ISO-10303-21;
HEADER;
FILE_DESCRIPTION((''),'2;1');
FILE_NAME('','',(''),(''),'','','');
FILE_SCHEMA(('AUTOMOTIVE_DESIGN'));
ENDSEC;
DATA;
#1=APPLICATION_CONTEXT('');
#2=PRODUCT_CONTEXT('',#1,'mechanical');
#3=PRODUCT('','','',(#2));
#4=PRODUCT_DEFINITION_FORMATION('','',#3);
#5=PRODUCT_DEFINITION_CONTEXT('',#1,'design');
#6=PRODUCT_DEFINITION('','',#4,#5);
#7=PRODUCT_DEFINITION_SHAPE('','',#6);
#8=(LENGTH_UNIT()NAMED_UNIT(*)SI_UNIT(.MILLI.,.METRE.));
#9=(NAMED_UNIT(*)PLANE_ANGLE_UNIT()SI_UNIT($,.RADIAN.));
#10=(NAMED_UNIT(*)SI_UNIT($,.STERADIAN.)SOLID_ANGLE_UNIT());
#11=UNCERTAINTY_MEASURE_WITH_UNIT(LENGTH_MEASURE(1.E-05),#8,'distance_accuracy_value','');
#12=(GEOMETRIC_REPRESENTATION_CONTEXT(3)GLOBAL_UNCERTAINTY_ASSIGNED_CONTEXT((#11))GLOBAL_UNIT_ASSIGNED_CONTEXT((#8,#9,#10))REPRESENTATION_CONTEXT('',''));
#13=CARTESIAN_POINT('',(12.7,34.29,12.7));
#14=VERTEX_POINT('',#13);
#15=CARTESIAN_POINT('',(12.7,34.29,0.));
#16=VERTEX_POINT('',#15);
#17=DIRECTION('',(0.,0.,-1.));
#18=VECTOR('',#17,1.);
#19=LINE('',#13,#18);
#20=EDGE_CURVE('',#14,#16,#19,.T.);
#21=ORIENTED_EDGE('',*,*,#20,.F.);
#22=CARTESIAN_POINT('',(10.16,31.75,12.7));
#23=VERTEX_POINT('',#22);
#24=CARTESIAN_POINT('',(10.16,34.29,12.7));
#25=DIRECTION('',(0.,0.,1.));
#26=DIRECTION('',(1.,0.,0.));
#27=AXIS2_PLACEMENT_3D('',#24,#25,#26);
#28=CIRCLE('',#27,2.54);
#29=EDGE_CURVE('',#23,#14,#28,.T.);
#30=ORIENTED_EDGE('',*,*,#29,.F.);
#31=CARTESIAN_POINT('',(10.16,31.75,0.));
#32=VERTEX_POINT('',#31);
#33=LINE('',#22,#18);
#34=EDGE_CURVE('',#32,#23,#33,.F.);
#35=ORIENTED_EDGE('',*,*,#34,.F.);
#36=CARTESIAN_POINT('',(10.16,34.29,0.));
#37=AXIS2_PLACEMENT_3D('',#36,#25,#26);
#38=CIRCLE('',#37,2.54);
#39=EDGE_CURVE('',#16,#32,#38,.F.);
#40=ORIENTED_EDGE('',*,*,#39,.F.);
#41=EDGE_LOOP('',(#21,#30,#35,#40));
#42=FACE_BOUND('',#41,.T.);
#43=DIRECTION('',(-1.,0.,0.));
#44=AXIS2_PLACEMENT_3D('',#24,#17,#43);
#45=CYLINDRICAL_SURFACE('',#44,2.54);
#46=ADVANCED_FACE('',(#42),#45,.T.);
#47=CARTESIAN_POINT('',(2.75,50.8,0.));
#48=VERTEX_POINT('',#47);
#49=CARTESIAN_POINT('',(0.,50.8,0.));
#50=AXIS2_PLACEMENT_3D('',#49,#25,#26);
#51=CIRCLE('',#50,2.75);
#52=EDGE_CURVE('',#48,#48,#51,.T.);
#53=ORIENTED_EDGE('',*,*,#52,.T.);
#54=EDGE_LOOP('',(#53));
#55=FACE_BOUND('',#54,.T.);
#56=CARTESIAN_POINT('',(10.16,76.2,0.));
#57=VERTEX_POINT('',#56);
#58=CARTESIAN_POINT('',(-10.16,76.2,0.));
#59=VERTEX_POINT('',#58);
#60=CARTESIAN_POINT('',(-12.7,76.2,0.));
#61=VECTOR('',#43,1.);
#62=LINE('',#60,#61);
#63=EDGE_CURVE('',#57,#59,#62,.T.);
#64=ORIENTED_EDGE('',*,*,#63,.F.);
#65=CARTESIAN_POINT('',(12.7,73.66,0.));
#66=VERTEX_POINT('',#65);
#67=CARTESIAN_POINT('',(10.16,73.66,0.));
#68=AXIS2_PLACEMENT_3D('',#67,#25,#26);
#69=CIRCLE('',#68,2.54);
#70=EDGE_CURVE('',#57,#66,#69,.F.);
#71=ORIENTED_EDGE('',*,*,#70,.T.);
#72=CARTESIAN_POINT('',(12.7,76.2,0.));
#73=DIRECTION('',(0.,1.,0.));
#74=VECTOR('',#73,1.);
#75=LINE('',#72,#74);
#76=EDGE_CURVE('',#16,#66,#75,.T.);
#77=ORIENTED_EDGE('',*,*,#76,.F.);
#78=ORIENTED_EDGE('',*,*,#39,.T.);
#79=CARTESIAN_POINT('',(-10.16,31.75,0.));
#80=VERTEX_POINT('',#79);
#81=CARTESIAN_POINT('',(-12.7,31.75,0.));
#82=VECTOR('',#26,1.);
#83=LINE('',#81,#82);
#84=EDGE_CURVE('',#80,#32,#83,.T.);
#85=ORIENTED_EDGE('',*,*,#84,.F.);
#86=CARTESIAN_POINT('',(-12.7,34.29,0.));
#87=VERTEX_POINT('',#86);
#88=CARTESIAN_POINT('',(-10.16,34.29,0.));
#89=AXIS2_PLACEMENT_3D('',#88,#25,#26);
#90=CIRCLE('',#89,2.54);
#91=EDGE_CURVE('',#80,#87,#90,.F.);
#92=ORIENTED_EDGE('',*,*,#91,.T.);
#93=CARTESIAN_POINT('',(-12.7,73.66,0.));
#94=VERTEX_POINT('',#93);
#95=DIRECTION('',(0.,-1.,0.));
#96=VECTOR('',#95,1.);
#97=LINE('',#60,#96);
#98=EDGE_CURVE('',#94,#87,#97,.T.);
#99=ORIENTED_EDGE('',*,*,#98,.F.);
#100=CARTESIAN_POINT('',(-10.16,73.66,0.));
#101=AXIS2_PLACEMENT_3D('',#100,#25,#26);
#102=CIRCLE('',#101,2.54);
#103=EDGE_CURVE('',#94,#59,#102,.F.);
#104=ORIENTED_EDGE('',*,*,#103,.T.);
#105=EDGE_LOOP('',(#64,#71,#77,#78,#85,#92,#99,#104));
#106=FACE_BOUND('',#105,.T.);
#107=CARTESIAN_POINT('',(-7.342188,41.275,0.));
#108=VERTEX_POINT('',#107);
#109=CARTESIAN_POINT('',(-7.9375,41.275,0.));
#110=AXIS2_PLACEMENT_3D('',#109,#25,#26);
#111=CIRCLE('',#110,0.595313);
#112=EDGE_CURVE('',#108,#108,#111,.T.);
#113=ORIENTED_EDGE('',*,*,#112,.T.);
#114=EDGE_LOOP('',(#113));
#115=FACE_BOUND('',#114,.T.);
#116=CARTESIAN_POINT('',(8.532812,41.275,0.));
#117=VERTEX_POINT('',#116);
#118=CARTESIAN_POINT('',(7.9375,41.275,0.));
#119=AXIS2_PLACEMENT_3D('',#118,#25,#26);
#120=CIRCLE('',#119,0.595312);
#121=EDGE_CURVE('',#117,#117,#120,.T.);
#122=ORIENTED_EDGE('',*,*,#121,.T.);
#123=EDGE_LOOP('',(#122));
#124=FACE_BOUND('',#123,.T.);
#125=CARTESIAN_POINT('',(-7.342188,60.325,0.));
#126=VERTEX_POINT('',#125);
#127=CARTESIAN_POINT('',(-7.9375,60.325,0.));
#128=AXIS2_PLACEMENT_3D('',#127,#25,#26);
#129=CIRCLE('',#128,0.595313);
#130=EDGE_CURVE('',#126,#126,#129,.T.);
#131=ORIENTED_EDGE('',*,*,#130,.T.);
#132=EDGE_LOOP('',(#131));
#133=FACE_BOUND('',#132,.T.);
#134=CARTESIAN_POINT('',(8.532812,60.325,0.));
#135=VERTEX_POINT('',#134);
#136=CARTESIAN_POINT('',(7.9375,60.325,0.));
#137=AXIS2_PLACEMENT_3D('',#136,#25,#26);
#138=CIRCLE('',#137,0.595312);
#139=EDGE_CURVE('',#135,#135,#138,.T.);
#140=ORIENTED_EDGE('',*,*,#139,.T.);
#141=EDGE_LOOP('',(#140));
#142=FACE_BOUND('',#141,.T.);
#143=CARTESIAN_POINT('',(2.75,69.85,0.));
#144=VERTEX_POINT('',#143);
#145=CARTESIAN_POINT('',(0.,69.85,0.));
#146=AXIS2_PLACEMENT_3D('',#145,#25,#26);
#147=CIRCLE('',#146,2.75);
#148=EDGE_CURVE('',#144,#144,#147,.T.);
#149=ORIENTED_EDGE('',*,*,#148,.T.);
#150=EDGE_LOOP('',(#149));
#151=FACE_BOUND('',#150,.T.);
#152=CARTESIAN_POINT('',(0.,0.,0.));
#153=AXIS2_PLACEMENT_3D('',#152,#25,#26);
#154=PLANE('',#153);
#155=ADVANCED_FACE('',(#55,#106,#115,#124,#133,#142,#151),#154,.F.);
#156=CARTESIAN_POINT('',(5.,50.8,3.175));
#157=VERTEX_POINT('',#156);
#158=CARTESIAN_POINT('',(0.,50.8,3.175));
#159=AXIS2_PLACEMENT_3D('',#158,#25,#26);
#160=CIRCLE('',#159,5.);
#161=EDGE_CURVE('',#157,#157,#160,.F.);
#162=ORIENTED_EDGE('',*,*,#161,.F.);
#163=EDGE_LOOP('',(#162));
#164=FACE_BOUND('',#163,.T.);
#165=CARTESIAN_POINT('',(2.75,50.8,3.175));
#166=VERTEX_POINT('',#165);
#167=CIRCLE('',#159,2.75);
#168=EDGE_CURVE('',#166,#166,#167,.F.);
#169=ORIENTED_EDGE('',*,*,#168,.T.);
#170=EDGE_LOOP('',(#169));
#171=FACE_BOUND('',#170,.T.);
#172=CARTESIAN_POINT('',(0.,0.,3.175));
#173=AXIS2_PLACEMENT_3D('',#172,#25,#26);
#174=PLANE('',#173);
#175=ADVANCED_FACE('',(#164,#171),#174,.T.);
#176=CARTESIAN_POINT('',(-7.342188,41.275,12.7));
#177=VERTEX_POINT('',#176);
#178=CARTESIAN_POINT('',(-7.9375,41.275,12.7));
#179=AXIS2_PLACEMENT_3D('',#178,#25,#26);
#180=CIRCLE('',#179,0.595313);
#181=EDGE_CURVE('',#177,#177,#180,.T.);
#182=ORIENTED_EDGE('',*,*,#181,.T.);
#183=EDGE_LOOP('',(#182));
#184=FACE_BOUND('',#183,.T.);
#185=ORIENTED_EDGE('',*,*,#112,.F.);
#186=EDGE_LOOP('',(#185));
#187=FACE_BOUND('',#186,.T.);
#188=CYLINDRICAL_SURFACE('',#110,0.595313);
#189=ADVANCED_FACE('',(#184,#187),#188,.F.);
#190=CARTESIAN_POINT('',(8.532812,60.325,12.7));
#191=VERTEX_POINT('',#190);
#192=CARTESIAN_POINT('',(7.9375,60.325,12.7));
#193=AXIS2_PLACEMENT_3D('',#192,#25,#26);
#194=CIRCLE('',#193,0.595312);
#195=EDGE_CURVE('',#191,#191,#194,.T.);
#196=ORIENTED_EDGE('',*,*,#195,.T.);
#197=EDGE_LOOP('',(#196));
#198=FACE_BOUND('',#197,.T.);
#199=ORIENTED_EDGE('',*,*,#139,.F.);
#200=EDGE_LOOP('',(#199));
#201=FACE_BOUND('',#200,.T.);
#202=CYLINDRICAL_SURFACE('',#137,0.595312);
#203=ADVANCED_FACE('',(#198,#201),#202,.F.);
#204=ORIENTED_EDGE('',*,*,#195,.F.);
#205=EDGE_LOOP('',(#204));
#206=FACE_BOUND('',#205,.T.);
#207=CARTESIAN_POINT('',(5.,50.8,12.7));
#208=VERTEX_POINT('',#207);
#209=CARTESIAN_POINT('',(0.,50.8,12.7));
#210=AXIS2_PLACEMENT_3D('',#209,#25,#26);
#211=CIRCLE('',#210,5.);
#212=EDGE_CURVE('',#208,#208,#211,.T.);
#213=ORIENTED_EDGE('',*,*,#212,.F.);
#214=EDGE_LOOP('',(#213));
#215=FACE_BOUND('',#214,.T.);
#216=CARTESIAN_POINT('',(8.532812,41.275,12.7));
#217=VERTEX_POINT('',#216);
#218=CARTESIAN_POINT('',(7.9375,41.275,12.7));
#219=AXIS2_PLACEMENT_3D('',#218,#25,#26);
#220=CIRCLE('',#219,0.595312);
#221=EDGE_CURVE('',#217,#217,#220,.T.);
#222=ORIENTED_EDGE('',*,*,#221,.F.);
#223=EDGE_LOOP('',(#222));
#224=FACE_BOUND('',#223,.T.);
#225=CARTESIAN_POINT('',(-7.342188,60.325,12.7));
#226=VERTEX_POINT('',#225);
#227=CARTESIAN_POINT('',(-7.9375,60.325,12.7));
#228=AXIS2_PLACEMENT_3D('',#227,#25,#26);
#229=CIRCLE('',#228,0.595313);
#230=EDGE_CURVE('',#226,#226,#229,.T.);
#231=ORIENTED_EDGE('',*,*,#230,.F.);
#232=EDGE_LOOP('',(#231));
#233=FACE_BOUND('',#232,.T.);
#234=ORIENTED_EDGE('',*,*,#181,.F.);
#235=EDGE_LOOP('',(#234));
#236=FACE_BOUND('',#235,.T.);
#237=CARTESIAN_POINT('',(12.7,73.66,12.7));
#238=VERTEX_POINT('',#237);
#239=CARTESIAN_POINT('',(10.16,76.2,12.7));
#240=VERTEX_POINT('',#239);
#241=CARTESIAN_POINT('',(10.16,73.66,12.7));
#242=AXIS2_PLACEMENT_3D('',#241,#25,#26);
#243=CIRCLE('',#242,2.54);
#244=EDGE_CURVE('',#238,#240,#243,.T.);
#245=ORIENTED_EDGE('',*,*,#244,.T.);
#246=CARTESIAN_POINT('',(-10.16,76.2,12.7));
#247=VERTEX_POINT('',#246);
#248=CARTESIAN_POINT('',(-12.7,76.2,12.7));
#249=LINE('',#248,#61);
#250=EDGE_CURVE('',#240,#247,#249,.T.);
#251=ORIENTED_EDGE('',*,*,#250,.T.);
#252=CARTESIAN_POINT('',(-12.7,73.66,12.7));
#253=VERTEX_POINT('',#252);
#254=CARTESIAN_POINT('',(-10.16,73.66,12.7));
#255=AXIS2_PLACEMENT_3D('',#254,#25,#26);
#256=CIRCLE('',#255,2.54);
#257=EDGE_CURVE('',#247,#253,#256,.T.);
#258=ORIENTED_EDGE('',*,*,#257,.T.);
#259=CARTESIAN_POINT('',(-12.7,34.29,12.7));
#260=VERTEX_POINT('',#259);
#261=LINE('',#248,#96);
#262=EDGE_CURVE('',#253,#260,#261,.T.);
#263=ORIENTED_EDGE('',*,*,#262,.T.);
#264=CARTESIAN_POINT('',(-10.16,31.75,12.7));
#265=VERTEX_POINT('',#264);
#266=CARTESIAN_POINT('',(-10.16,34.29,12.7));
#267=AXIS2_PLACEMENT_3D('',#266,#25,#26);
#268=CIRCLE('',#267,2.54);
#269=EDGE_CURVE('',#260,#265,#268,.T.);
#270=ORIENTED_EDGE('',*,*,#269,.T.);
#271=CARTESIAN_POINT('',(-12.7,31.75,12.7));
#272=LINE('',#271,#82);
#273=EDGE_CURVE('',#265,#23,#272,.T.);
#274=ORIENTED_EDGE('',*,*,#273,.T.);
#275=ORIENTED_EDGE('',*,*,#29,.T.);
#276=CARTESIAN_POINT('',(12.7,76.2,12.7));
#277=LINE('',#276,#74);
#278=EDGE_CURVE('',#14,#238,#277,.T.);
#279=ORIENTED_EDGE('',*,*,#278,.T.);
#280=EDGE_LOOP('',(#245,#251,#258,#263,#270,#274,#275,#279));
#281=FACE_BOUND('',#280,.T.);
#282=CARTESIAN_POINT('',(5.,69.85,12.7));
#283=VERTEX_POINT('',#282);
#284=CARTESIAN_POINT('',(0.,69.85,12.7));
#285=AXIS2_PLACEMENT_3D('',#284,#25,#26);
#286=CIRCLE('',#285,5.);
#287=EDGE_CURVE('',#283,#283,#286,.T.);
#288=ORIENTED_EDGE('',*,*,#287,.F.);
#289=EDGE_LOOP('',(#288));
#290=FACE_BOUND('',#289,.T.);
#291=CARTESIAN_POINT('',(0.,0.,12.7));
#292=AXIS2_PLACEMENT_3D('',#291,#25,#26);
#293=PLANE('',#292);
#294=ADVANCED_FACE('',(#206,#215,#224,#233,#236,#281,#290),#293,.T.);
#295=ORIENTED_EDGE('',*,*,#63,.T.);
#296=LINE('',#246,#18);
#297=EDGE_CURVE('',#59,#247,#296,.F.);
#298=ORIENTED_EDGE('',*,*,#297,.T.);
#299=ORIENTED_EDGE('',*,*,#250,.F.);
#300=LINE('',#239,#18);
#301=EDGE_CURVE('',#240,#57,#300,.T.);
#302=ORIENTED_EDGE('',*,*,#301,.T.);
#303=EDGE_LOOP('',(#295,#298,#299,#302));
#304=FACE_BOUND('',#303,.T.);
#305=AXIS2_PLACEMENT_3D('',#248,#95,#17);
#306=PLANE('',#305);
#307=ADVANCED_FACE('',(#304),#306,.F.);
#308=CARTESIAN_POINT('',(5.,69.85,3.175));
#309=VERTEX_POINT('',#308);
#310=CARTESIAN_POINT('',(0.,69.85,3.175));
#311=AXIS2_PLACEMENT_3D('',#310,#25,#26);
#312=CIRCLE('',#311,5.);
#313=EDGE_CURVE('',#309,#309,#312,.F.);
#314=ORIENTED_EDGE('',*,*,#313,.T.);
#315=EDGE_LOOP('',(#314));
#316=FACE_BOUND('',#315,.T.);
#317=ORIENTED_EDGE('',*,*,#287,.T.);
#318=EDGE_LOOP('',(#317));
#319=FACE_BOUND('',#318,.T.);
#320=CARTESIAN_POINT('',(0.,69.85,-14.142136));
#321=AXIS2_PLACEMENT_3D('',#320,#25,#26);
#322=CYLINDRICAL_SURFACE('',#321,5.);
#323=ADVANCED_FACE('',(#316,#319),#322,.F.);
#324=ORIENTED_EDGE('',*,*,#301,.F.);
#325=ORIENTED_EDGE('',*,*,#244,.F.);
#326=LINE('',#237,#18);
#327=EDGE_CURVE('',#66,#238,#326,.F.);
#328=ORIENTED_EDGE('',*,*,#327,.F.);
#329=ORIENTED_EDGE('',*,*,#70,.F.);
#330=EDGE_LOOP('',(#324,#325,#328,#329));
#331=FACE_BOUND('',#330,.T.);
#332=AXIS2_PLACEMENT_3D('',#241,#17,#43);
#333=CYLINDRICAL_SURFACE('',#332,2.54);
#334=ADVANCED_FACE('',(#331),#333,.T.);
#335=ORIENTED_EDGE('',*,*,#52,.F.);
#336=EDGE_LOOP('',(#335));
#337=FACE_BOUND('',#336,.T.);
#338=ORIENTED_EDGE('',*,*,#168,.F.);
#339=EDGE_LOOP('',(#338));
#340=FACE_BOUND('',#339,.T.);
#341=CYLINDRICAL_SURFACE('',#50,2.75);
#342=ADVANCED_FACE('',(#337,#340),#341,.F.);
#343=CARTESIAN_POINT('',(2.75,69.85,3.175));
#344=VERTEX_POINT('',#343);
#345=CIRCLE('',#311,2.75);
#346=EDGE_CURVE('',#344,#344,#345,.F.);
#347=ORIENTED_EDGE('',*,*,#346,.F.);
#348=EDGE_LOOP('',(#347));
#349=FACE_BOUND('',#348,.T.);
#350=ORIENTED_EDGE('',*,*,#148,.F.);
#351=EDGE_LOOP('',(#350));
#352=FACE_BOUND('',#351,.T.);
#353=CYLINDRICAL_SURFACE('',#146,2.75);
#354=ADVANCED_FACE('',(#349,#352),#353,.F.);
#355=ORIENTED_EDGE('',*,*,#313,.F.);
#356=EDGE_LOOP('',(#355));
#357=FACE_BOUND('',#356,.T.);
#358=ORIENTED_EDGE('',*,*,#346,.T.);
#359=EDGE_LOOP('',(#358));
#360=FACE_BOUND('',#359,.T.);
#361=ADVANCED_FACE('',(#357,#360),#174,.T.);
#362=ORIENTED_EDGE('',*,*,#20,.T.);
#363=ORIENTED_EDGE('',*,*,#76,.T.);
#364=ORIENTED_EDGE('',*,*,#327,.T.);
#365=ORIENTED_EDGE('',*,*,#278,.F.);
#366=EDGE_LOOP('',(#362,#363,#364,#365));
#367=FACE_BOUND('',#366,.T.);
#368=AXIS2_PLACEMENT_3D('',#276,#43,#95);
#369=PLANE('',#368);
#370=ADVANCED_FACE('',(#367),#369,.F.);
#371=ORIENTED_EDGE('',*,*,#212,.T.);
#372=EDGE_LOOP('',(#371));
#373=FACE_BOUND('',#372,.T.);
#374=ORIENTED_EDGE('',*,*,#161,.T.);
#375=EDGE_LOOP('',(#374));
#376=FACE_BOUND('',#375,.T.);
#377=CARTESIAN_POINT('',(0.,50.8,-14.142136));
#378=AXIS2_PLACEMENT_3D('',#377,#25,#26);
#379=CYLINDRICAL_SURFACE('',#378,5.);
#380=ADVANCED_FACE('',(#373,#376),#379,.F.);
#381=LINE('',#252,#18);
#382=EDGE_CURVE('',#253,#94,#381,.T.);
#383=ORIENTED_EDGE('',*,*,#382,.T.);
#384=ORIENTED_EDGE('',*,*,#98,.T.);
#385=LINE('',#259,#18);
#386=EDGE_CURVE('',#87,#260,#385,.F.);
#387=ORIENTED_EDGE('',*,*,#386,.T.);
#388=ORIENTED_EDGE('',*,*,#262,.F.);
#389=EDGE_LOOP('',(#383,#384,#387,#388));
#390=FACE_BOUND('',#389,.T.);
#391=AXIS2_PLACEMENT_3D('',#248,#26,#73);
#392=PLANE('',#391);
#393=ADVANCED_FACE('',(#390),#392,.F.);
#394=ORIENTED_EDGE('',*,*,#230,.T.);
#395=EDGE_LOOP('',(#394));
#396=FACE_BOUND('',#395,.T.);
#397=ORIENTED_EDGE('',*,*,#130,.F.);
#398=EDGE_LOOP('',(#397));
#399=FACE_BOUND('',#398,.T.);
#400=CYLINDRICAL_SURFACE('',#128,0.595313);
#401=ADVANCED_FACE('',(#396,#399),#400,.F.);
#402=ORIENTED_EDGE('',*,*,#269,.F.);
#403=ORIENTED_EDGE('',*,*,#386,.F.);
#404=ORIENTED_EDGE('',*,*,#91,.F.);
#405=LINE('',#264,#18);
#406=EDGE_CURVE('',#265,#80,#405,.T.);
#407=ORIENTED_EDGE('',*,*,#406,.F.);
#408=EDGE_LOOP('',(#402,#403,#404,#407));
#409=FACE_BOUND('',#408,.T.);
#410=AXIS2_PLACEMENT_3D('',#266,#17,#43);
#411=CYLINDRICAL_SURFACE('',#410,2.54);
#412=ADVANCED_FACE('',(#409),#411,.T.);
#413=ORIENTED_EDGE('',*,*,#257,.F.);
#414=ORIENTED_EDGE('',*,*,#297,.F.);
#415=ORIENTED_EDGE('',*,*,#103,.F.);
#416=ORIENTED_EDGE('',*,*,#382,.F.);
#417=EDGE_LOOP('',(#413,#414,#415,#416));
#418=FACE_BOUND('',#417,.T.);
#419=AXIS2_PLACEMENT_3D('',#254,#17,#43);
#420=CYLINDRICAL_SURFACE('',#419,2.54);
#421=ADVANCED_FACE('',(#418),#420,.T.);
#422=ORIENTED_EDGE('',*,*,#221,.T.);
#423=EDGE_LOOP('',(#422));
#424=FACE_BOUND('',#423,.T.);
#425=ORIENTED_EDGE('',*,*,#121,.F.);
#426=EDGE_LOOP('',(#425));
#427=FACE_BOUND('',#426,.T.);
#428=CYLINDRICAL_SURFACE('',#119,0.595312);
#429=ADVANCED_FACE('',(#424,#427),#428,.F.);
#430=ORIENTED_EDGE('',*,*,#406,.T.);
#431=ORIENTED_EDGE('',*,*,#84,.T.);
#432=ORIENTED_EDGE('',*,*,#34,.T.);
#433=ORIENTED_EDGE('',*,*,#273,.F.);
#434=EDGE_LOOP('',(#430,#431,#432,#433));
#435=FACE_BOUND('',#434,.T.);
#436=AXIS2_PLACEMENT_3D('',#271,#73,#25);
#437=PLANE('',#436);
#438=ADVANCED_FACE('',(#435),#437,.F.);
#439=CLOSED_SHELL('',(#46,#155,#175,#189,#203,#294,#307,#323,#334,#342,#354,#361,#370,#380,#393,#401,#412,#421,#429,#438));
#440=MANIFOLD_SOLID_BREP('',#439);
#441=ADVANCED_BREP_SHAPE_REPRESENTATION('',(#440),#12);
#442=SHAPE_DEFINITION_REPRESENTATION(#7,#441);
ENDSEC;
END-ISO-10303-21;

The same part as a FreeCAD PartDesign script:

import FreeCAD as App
import Part
import Sketcher
from FreeCAD import Vector
Q = App.Units.Quantity


def edges_at(feature, points):
    """Names of the edges that pass closest to the given points."""
    edges = feature.Shape.Edges
    near = lambda p: min(range(len(edges)), key=lambda i: edges[i].distToShape(Part.Vertex(*p))[0])
    return sorted({f"Edge{near(p) + 1}" for p in points})

doc = App.newDocument("Part")
body = doc.addObject("PartDesign::Body", "Body")

sketch1 = doc.addObject("Sketcher::SketchObject", "Sketch")
body.addObject(sketch1)
sketch1.AttachmentSupport = (doc.XY_Plane, [""])
sketch1.MapMode = "FlatFace"
sketch1.addGeometry(Part.LineSegment(Vector(-13, 76, 0), Vector(-13, 32, 0)), False)
sketch1.addGeometry(Part.LineSegment(Vector(-13, 32, 0), Vector(13, 32, 0)), False)
sketch1.addGeometry(Part.LineSegment(Vector(13, 32, 0), Vector(13, 76, 0)), False)
sketch1.addGeometry(Part.LineSegment(Vector(13, 76, 0), Vector(-13, 76, 0)), False)
sketch1.addConstraint(Sketcher.Constraint("Coincident", 0, 2, 1, 1))
sketch1.addConstraint(Sketcher.Constraint("Coincident", 1, 2, 2, 1))
sketch1.addConstraint(Sketcher.Constraint("Coincident", 2, 2, 3, 1))
sketch1.addConstraint(Sketcher.Constraint("Coincident", 3, 2, 0, 1))
sketch1.addConstraint(Sketcher.Constraint("Vertical", 0))
sketch1.addConstraint(Sketcher.Constraint("Horizontal", 1))
sketch1.addConstraint(Sketcher.Constraint("Vertical", 2))
sketch1.addConstraint(Sketcher.Constraint("Horizontal", 3))
sketch1.addConstraint(Sketcher.Constraint("DistanceX", 1, 1, 1, 2, Q("1 in")))
sketch1.addConstraint(Sketcher.Constraint("DistanceY", -1, 1, 2, 2, Q("3 in")))
sketch1.addConstraint(Sketcher.Constraint("DistanceY", 0, 2, 0, 1, Q("1.75 in")))
sketch1.addConstraint(Sketcher.Constraint("DistanceX", 0, 2, -1, 1, Q("0.5 in")))
pad1 = doc.addObject("PartDesign::Pad", "Pad")
body.addObject(pad1)
pad1.Profile = sketch1
pad1.Length = Q("0.5 in")

sketch2 = doc.addObject("Sketcher::SketchObject", "Sketch001")
body.addObject(sketch2)
sketch2.AttachmentSupport = (doc.XY_Plane, [""])
sketch2.MapMode = "FlatFace"
sketch2.AttachmentOffset = App.Placement(Vector(0, 0, 0.5 * 25.4), App.Rotation())
sketch2.addGeometry(Part.Circle(Vector(0, 50.8, 0), Vector(0, 0, 1), 2.8), False)
sketch2.addGeometry(Part.Circle(Vector(0, 69.8, 0), Vector(0, 0, 1), 2.8), False)
sketch2.addConstraint(Sketcher.Constraint("Equal", 0, 1))
sketch2.addConstraint(Sketcher.Constraint("PointOnObject", 0, 3, -2))
sketch2.addConstraint(Sketcher.Constraint("PointOnObject", 1, 3, -2))
sketch2.addConstraint(Sketcher.Constraint("DistanceY", -1, 1, 0, 3, Q("2 in")))
sketch2.addConstraint(Sketcher.Constraint("Diameter", 0, Q("5.5 mm")))
sketch2.addConstraint(Sketcher.Constraint("DistanceY", -1, 1, 1, 3, Q("2.75 in")))
pocket1 = doc.addObject("PartDesign::Pocket", "Pocket")
body.addObject(pocket1)
pocket1.Profile = sketch2
pocket1.Type = "ThroughAll"

sketch3 = doc.addObject("Sketcher::SketchObject", "Sketch002")
body.addObject(sketch3)
sketch3.AttachmentSupport = (doc.XY_Plane, [""])
sketch3.MapMode = "FlatFace"
sketch3.AttachmentOffset = App.Placement(Vector(0, 0, 0.5 * 25.4), App.Rotation())
sketch3.addGeometry(Part.Circle(Vector(0, 51, 0), Vector(0, 0, 1), 5), False)
sketch3.addGeometry(Part.Circle(Vector(0, 70, 0), Vector(0, 0, 1), 5), False)
sketch3.addConstraint(Sketcher.Constraint("Equal", 0, 1))
sketch3.addConstraint(Sketcher.Constraint("PointOnObject", 0, 3, -2))
sketch3.addConstraint(Sketcher.Constraint("PointOnObject", 1, 3, -2))
sketch3.addConstraint(Sketcher.Constraint("DistanceY", -1, 1, 0, 3, Q("2 in")))
sketch3.addConstraint(Sketcher.Constraint("Diameter", 0, Q("10 mm")))
sketch3.addConstraint(Sketcher.Constraint("DistanceY", -1, 1, 1, 3, Q("2.75 in")))
pocket2 = doc.addObject("PartDesign::Pocket", "Pocket001")
body.addObject(pocket2)
pocket2.Profile = sketch3
pocket2.Length = Q("0.375 in")

sketch4 = doc.addObject("Sketcher::SketchObject", "Sketch003")
body.addObject(sketch4)
sketch4.AttachmentSupport = (doc.XY_Plane, [""])
sketch4.MapMode = "FlatFace"
sketch4.AttachmentOffset = App.Placement(Vector(0, 0, 0.5 * 25.4), App.Rotation())
sketch4.addGeometry(Part.Circle(Vector(7.9, 41.3, 0), Vector(0, 0, 1), 0.6), False)
sketch4.addGeometry(Part.Circle(Vector(-7.9, 41.3, 0), Vector(0, 0, 1), 0.6), False)
sketch4.addGeometry(Part.Circle(Vector(-7.9, 60.3, 0), Vector(0, 0, 1), 0.6), False)
sketch4.addGeometry(Part.Circle(Vector(7.9, 60.3, 0), Vector(0, 0, 1), 0.6), False)
sketch4.addConstraint(Sketcher.Constraint("Equal", 0, 1))
sketch4.addConstraint(Sketcher.Constraint("Equal", 1, 2))
sketch4.addConstraint(Sketcher.Constraint("Equal", 2, 3))
sketch4.addConstraint(Sketcher.Constraint("Symmetric", 0, 3, 1, 3, -2))
sketch4.addConstraint(Sketcher.Constraint("Symmetric", 2, 3, 3, 3, -2))
sketch4.addConstraint(Sketcher.Constraint("Vertical", 1, 3, 2, 3))
sketch4.addConstraint(Sketcher.Constraint("Diameter", 0, Q("0.046875 in")))
sketch4.addConstraint(Sketcher.Constraint("DistanceY", 1, 3, 2, 3, Q("0.75 in")))
sketch4.addConstraint(Sketcher.Constraint("DistanceX", -1, 1, 0, 3, Q("0.3125 in")))
sketch4.addConstraint(Sketcher.Constraint("DistanceY", -1, 1, 0, 3, Q("1.625 in")))
pocket3 = doc.addObject("PartDesign::Pocket", "Pocket002")
body.addObject(pocket3)
pocket3.Profile = sketch4
pocket3.Type = "ThroughAll"
doc.recompute()

fillet = doc.addObject("PartDesign::Fillet", "Fillet")
body.addObject(fillet)
fillet.Base = (pocket3, edges_at(pocket3, [
    (-12.7, 76.2, 6.35),
    (12.7, 76.2, 6.35),
    (12.7, 31.75, 6.35),
    (-12.7, 31.75, 6.35),
]))
fillet.Radius = Q("0.1 in")

doc.recompute()
